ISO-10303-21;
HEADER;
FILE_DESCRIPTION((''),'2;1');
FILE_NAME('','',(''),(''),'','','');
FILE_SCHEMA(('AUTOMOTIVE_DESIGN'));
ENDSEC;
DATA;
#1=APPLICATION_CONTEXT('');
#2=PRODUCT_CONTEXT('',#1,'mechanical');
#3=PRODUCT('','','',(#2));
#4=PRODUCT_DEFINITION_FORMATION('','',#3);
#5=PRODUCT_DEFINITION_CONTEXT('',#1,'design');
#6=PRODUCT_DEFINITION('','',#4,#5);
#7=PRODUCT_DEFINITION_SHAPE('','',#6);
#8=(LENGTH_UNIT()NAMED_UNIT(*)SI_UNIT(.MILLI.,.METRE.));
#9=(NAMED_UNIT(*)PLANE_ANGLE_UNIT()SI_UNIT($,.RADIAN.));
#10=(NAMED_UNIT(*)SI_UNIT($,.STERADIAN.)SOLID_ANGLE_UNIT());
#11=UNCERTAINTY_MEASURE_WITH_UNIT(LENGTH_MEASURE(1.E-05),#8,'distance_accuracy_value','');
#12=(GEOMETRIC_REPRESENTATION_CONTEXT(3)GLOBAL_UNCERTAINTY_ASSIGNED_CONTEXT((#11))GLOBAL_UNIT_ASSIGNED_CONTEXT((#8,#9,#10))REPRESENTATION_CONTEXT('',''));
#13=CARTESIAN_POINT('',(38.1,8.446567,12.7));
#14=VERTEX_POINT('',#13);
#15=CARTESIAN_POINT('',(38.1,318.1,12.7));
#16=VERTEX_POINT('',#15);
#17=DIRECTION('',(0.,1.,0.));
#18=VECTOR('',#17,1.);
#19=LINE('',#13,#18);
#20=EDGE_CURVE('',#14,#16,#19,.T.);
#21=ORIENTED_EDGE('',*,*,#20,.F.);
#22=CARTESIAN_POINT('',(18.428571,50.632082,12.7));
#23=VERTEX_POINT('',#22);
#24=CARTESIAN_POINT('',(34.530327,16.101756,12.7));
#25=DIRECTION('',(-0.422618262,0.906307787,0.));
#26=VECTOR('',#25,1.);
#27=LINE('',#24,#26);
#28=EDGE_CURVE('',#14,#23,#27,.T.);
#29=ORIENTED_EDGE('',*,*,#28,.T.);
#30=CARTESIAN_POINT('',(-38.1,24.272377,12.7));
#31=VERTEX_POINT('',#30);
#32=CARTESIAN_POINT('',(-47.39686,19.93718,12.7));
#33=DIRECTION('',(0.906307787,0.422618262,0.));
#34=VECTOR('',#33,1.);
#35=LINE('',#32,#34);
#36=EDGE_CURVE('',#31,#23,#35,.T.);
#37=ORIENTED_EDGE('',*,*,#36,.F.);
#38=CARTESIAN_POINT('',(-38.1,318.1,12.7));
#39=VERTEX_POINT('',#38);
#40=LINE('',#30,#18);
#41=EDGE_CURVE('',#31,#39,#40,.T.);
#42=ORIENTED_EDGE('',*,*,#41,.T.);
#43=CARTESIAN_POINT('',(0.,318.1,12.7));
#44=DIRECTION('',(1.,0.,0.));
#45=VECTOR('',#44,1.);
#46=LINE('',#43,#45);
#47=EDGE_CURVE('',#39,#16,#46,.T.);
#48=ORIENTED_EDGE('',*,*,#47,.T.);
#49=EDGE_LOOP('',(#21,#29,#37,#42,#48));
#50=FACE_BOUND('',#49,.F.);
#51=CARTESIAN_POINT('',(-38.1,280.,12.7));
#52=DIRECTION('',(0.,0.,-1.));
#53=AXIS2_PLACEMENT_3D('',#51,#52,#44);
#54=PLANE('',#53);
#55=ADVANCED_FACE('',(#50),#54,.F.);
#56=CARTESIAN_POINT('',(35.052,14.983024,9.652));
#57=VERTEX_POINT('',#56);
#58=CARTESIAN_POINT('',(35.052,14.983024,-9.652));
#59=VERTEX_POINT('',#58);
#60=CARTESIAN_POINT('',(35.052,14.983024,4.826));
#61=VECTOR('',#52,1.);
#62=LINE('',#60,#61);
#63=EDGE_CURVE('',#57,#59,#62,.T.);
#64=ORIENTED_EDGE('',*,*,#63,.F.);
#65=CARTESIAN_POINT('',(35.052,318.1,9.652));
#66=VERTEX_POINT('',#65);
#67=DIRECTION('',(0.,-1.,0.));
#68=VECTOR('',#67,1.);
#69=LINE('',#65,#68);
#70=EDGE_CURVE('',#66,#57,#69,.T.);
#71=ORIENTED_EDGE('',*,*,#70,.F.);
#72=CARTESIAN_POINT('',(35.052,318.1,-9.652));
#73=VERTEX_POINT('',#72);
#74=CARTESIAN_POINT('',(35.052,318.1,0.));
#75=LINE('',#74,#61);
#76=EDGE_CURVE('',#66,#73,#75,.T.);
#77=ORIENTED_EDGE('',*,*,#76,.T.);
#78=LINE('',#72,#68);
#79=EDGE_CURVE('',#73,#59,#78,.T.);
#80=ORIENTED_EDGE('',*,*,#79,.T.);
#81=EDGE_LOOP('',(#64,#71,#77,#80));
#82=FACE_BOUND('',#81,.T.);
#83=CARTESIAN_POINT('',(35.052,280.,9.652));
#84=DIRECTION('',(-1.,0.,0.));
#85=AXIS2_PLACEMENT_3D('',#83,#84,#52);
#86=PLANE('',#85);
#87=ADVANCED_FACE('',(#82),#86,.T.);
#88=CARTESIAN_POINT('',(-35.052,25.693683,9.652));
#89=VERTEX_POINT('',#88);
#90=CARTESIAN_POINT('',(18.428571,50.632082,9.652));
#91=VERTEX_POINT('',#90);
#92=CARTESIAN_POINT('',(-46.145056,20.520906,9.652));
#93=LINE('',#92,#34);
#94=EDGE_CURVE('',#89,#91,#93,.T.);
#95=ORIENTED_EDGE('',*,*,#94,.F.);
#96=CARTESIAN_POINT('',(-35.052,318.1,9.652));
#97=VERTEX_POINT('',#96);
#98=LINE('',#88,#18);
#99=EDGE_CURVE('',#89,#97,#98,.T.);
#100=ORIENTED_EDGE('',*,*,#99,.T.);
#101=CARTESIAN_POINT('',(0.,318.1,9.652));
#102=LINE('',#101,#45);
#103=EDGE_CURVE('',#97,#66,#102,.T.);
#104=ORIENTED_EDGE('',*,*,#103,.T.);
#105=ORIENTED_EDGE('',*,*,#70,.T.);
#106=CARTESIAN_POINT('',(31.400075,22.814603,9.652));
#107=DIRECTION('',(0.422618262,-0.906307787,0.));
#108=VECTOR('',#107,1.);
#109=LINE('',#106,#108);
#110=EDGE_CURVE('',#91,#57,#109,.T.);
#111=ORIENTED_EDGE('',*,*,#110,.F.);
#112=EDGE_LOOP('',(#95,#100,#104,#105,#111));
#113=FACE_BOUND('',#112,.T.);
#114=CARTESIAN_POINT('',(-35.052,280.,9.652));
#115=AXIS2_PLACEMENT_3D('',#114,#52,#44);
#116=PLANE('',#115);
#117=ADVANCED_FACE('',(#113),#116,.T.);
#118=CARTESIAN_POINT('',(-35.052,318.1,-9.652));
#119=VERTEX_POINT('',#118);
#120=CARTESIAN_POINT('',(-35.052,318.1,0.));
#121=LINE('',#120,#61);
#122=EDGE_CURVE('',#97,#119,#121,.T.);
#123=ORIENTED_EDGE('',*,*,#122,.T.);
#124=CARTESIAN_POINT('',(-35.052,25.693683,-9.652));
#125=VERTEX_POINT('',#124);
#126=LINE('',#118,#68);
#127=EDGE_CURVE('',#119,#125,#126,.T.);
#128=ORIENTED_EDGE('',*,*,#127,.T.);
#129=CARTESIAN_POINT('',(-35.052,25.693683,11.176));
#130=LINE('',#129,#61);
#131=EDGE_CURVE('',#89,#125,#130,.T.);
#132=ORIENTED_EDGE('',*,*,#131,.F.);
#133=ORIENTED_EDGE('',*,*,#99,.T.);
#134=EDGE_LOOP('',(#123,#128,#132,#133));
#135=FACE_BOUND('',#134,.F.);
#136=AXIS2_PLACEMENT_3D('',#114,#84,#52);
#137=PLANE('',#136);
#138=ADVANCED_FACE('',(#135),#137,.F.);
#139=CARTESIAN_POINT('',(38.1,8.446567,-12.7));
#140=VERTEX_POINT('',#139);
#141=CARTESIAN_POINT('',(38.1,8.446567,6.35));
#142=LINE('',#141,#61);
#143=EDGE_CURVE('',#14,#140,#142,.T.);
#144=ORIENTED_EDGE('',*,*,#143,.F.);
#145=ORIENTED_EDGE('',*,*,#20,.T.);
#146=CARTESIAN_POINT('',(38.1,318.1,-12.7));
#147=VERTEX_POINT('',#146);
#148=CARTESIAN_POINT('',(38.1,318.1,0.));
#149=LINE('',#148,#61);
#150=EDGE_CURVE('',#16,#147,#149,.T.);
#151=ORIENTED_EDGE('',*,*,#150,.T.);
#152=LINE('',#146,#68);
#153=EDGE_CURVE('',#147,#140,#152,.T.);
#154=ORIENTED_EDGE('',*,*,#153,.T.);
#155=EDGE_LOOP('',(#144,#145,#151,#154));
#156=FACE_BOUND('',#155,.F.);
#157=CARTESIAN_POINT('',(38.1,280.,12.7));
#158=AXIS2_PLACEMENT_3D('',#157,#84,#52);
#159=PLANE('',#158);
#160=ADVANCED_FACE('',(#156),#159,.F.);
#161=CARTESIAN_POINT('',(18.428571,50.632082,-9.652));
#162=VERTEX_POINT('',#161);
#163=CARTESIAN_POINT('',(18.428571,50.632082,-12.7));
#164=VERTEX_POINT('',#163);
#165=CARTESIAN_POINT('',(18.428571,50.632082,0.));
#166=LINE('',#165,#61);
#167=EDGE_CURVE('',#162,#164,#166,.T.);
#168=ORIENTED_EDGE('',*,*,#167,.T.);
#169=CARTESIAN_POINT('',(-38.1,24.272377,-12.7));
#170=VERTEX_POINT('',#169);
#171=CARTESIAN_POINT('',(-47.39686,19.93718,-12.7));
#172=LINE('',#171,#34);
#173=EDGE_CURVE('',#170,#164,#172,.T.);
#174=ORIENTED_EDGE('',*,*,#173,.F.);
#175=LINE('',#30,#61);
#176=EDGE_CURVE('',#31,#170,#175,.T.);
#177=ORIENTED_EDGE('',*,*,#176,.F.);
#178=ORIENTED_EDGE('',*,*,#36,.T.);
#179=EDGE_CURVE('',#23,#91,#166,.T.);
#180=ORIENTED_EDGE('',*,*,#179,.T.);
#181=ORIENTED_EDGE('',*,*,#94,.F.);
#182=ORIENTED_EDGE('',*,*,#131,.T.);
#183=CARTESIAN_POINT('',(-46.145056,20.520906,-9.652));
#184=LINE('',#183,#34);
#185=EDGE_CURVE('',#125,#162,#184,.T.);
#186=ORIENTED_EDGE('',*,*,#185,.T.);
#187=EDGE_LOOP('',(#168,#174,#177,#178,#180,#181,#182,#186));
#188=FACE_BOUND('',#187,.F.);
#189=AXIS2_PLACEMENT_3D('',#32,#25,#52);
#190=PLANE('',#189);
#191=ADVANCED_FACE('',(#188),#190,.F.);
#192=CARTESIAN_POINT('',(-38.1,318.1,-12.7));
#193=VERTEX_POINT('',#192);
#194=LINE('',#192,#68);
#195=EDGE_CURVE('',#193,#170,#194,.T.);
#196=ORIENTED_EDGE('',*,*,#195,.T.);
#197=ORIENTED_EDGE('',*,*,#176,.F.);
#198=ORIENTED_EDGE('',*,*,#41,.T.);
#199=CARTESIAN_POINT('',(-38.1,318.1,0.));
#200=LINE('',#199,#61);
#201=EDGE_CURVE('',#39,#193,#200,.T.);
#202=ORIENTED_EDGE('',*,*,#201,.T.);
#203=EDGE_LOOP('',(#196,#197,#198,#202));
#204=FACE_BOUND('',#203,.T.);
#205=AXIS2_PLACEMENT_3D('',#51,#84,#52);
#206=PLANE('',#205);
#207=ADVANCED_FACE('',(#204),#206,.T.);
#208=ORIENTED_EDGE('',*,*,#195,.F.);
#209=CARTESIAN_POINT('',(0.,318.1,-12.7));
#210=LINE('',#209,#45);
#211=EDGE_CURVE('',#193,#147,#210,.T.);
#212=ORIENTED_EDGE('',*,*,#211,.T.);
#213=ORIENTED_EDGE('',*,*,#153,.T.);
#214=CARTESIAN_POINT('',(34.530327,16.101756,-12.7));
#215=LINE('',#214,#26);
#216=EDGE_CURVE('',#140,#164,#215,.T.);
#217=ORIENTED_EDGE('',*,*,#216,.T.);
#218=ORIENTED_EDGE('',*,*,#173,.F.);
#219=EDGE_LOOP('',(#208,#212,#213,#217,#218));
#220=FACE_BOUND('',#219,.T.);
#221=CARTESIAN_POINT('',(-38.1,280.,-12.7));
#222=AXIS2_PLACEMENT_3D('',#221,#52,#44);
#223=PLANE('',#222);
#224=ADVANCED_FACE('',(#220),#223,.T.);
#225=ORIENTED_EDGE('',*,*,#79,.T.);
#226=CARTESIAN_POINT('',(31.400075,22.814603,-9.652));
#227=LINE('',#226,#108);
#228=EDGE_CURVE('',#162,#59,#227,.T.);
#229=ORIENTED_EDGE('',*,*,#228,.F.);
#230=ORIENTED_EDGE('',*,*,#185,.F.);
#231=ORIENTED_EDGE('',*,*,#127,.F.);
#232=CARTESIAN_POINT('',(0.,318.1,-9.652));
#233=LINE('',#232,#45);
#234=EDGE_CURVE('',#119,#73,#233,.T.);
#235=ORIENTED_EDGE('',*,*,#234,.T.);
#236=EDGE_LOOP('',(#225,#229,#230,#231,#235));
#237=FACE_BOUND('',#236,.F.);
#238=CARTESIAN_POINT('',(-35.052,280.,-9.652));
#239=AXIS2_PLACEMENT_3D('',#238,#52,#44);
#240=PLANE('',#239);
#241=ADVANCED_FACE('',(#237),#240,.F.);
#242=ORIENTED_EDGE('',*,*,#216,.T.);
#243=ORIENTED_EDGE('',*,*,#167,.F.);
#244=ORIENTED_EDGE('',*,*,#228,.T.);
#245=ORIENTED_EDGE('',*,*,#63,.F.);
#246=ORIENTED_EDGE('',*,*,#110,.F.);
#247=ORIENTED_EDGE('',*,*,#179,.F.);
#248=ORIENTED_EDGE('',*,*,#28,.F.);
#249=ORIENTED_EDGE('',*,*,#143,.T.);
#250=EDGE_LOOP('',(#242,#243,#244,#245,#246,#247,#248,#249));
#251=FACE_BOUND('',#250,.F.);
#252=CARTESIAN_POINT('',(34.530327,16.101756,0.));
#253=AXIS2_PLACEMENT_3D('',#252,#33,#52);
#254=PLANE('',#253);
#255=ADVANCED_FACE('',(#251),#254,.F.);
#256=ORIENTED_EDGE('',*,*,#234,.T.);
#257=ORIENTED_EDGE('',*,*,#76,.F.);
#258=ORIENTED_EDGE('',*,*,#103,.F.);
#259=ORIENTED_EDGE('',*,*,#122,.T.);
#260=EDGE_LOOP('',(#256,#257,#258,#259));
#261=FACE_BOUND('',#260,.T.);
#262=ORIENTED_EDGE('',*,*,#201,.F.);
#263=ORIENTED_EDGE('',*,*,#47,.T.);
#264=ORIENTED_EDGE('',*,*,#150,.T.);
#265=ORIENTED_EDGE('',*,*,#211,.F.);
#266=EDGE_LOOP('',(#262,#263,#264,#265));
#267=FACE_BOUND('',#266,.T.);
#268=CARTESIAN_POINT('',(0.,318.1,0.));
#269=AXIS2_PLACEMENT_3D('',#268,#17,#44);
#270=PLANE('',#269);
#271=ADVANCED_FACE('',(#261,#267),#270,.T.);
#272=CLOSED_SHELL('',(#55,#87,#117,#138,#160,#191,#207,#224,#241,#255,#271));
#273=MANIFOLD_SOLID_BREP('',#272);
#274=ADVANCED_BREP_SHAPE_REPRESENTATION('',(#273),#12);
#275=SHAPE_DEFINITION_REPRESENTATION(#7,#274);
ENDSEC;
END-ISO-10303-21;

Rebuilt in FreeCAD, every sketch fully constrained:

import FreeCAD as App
import Part
import Sketcher

V = App.Vector
Q = App.Units.Quantity

doc = App.newDocument("Part")
params = doc.addObject("Spreadsheet::Sheet", "Params")
for row, (alias, value) in enumerate([
    ("sketch1_width", "3 in"),
    ("sketch1_height", "1 in"),
    ("sketch1_width2", "2.76 in"),
    ("sketch1_height2", "0.76 in"),
    ("pad1_length", "280 mm"),
    ("sketch2_width", "1 in"),
    ("sketch2_height", "3 in"),
    ("pocket1_length", "72.630327 mm"),
    ("sketch3_width", "3 in"),
    ("sketch3_height", "1 in"),
    ("sketch3_width2", "2.76 in"),
    ("sketch3_height2", "0.76 in"),
    ("pad2_length", "1.5 in"),
], start=1):
    params.set(f"A{row}", alias)
    params.set(f"B{row}", "=" + value)
    params.setAlias(f"B{row}", alias)

body = doc.addObject("PartDesign::Body", "Body")

# Sketch on XZ plane
sketch1 = doc.addObject("Sketcher::SketchObject", "Sketch")
body.addObject(sketch1)
sketch1.AttachmentSupport = (doc.XZ_Plane, [""])
sketch1.MapMode = "FlatFace"
sketch1.addGeometry([
    Part.LineSegment(V(-38, -13, 0), V(-38, 13, 0)),  # 0
    Part.LineSegment(V(-38, 13, 0), V(38, 13, 0)),  # 1
    Part.LineSegment(V(38, 13, 0), V(38, -13, 0)),  # 2
    Part.LineSegment(V(38, -13, 0), V(-38, -13, 0)),  # 3
    Part.LineSegment(V(35, 10, 0), V(-35, 10, 0)),  # 4
    Part.LineSegment(V(-35, 10, 0), V(-35, -10, 0)),  # 5
    Part.LineSegment(V(-35, -10, 0), V(35, -10, 0)),  # 6
    Part.LineSegment(V(35, -10, 0), V(35, 10, 0)),  # 7
], False)
sketch1.addConstraint([
    Sketcher.Constraint("Coincident", 0, 2, 1, 1),
    Sketcher.Constraint("Coincident", 1, 2, 2, 1),
    Sketcher.Constraint("Coincident", 2, 2, 3, 1),
    Sketcher.Constraint("Coincident", 3, 2, 0, 1),
    Sketcher.Constraint("Coincident", 4, 2, 5, 1),
    Sketcher.Constraint("Coincident", 5, 2, 6, 1),
    Sketcher.Constraint("Coincident", 6, 2, 7, 1),
    Sketcher.Constraint("Coincident", 7, 2, 4, 1),
    Sketcher.Constraint("Vertical", 0),
    Sketcher.Constraint("Horizontal", 1),
    Sketcher.Constraint("Vertical", 2),
    Sketcher.Constraint("Horizontal", 3),
    Sketcher.Constraint("Horizontal", 4),
    Sketcher.Constraint("Vertical", 5),
    Sketcher.Constraint("Horizontal", 6),
    Sketcher.Constraint("Vertical", 7),
    Sketcher.Constraint("Symmetric", 0, 2, 2, 2, -1, 1),
    Sketcher.Constraint("Symmetric", 4, 2, 6, 2, -1, 1),
    Sketcher.Constraint("DistanceX", 1, 1, 1, 2, Q("3 in")),
    Sketcher.Constraint("DistanceY", 0, 1, 0, 2, Q("1 in")),
    Sketcher.Constraint("DistanceX", 4, 2, 4, 1, Q("2.76 in")),
    Sketcher.Constraint("DistanceY", 5, 2, 5, 1, Q("0.76 in")),
])
sketch1.setExpression("Constraints[18]", "Params.sketch1_width")
sketch1.setExpression("Constraints[19]", "Params.sketch1_height")
sketch1.setExpression("Constraints[20]", "Params.sketch1_width2")
sketch1.setExpression("Constraints[21]", "Params.sketch1_height2")
pad1 = doc.addObject("PartDesign::Pad", "Pad")
body.addObject(pad1)
pad1.Profile = sketch1
pad1.setExpression("Length", "Params.pad1_length")
pad1.Reversed = True

# Sketch on an angled plane
sketch2 = doc.addObject("Sketcher::SketchObject", "Sketch001")
body.addObject(sketch2)
sketch2.Placement = App.Placement(V(-31.295104, -14.593147, 0), App.Rotation(V(0, 0, -1), V(-0.422618262, 0.906307787, 0), V(0.906307787, 0.422618262, 0), "ZXY"))
sketch2.addGeometry([
    Part.LineSegment(V(-13, 38, 0), V(-13, -38, 0)),
    Part.LineSegment(V(-13, -38, 0), V(13, -38, 0)),
    Part.LineSegment(V(13, -38, 0), V(13, 38, 0)),
    Part.LineSegment(V(13, 38, 0), V(-13, 38, 0)),
], False)
sketch2.addConstraint([
    Sketcher.Constraint("Coincident", 0, 2, 1, 1),
    Sketcher.Constraint("Coincident", 1, 2, 2, 1),
    Sketcher.Constraint("Coincident", 2, 2, 3, 1),
    Sketcher.Constraint("Coincident", 3, 2, 0, 1),
    Sketcher.Constraint("Vertical", 0),
    Sketcher.Constraint("Horizontal", 1),
    Sketcher.Constraint("Vertical", 2),
    Sketcher.Constraint("Horizontal", 3),
    Sketcher.Constraint("Symmetric", 0, 2, 2, 2, -1, 1),
    Sketcher.Constraint("DistanceX", 1, 1, 1, 2, Q("1 in")),
    Sketcher.Constraint("DistanceY", 0, 2, 0, 1, Q("3 in")),
])
sketch2.setExpression("Constraints[9]", "Params.sketch2_width")
sketch2.setExpression("Constraints[10]", "Params.sketch2_height")
pocket1 = doc.addObject("PartDesign::Pocket", "Pocket")
body.addObject(pocket1)
pocket1.Profile = sketch2
pocket1.setExpression("Length", "Params.pocket1_length")
pocket1.Reversed = True

# Sketch on XZ plane
sketch3 = doc.addObject("Sketcher::SketchObject", "Sketch002")
body.addObject(sketch3)
sketch3.AttachmentSupport = (doc.XZ_Plane, [""])
sketch3.MapMode = "FlatFace"
sketch3.AttachmentOffset = App.Placement(V(0, 0, -280), App.Rotation())
sketch3.addGeometry([
    Part.LineSegment(V(-38, -13, 0), V(-38, 13, 0)),  # 0
    Part.LineSegment(V(-38, 13, 0), V(38, 13, 0)),  # 1
    Part.LineSegment(V(38, 13, 0), V(38, -13, 0)),  # 2
    Part.LineSegment(V(38, -13, 0), V(-38, -13, 0)),  # 3
    Part.LineSegment(V(35, 10, 0), V(-35, 10, 0)),  # 4
    Part.LineSegment(V(-35, 10, 0), V(-35, -10, 0)),  # 5
    Part.LineSegment(V(-35, -10, 0), V(35, -10, 0)),  # 6
    Part.LineSegment(V(35, -10, 0), V(35, 10, 0)),  # 7
], False)
sketch3.addConstraint([
    Sketcher.Constraint("Coincident", 0, 2, 1, 1),
    Sketcher.Constraint("Coincident", 1, 2, 2, 1),
    Sketcher.Constraint("Coincident", 2, 2, 3, 1),
    Sketcher.Constraint("Coincident", 3, 2, 0, 1),
    Sketcher.Constraint("Coincident", 4, 2, 5, 1),
    Sketcher.Constraint("Coincident", 5, 2, 6, 1),
    Sketcher.Constraint("Coincident", 6, 2, 7, 1),
    Sketcher.Constraint("Coincident", 7, 2, 4, 1),
    Sketcher.Constraint("Vertical", 0),
    Sketcher.Constraint("Horizontal", 1),
    Sketcher.Constraint("Vertical", 2),
    Sketcher.Constraint("Horizontal", 3),
    Sketcher.Constraint("Horizontal", 4),
    Sketcher.Constraint("Vertical", 5),
    Sketcher.Constraint("Horizontal", 6),
    Sketcher.Constraint("Vertical", 7),
    Sketcher.Constraint("Symmetric", 0, 2, 2, 2, -1, 1),
    Sketcher.Constraint("Symmetric", 4, 2, 6, 2, -1, 1),
    Sketcher.Constraint("DistanceX", 1, 1, 1, 2, Q("3 in")),
    Sketcher.Constraint("DistanceY", 0, 1, 0, 2, Q("1 in")),
    Sketcher.Constraint("DistanceX", 4, 2, 4, 1, Q("2.76 in")),
    Sketcher.Constraint("DistanceY", 5, 2, 5, 1, Q("0.76 in")),
])
sketch3.setExpression("Constraints[18]", "Params.sketch3_width")
sketch3.setExpression("Constraints[19]", "Params.sketch3_height")
sketch3.setExpression("Constraints[20]", "Params.sketch3_width2")
sketch3.setExpression("Constraints[21]", "Params.sketch3_height2")
pad2 = doc.addObject("PartDesign::Pad", "Pad001")
body.addObject(pad2)
pad2.Profile = sketch3
pad2.setExpression("Length", "Params.pad2_length")
pad2.Reversed = True

doc.recompute()
